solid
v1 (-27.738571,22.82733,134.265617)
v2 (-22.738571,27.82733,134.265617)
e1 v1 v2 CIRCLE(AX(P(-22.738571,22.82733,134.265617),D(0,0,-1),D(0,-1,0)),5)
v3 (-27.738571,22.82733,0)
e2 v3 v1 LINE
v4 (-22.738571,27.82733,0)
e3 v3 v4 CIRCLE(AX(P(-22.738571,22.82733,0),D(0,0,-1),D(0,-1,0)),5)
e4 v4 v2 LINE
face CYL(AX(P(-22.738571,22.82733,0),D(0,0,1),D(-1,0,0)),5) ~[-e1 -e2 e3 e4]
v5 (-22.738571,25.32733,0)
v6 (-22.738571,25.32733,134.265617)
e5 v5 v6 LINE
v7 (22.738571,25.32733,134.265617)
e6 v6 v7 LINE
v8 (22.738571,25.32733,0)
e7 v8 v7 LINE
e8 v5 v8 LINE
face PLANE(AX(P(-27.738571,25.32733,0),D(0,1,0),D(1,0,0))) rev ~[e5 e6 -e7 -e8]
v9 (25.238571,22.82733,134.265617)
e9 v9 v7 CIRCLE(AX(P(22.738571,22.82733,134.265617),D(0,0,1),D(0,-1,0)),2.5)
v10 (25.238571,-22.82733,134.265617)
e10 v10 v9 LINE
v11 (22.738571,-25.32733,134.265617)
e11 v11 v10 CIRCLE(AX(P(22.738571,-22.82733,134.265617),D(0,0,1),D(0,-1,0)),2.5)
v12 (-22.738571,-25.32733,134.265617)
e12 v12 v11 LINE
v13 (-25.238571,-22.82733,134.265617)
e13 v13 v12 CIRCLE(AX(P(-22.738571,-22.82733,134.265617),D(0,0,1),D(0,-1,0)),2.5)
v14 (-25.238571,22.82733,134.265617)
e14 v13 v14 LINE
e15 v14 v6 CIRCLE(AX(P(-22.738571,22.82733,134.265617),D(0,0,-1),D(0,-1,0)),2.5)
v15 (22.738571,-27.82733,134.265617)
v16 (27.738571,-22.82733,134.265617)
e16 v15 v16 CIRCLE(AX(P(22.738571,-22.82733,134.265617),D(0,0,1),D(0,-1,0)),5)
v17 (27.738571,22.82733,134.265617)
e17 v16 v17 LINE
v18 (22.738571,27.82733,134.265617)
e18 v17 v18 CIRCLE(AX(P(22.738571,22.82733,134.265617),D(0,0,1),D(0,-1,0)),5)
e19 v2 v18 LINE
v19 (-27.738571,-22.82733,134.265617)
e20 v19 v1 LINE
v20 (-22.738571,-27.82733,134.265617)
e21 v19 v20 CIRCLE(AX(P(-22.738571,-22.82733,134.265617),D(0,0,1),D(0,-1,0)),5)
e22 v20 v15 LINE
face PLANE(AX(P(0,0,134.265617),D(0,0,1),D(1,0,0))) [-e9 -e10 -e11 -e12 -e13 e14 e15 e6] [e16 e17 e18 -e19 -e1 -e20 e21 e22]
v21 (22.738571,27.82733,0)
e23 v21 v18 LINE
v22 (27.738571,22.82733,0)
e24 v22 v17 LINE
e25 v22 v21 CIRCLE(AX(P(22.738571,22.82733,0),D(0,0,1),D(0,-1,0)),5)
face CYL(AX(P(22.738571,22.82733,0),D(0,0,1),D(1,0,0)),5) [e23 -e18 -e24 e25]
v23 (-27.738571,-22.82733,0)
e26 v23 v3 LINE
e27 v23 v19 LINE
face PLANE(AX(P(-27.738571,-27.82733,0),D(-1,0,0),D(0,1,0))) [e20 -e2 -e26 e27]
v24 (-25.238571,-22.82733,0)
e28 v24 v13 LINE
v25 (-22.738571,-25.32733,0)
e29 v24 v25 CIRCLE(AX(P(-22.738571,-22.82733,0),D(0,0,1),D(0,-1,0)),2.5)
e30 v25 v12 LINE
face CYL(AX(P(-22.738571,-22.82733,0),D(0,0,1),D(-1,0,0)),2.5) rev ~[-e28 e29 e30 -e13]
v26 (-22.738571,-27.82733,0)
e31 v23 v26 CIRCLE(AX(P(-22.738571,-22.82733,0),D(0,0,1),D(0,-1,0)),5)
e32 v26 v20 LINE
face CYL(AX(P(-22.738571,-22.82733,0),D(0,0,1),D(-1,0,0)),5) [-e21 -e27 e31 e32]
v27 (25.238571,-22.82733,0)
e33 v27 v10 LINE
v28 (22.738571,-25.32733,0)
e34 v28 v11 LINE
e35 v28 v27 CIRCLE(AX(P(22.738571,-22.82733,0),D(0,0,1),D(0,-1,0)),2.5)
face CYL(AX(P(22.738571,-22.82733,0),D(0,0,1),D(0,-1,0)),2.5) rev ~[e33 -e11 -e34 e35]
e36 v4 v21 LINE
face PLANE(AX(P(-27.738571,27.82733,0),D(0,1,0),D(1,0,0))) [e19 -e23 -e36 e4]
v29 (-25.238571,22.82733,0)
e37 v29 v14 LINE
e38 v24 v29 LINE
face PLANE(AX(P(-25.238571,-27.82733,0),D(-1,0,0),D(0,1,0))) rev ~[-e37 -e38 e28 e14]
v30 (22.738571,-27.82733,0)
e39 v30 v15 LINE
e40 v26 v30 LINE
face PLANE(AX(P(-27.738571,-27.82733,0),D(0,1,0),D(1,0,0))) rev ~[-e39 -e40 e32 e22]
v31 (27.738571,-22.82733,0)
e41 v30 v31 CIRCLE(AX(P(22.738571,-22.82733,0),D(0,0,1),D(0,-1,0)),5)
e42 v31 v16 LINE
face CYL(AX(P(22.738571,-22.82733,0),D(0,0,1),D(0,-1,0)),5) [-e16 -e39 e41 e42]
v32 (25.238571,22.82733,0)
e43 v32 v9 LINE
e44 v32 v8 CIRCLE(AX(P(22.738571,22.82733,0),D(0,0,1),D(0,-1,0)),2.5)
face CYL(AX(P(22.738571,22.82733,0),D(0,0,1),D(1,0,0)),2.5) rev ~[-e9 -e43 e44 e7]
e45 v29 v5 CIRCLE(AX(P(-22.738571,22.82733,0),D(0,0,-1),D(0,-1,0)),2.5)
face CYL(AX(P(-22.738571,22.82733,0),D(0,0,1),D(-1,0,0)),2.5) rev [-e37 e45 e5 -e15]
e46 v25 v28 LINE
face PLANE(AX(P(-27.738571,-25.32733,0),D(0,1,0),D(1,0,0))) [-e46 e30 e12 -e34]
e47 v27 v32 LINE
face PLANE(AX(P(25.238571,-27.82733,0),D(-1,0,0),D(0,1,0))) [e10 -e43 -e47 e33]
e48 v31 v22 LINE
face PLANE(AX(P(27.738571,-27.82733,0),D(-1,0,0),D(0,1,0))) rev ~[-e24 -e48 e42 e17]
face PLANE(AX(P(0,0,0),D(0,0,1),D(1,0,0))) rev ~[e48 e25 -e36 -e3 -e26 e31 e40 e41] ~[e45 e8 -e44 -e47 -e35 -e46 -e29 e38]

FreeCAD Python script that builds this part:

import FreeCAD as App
import Part
import Sketcher

V = App.Vector


def edges_at(feature, points):
    """Names of the edges that pass closest to the given points."""
    edges = feature.Shape.Edges
    near = lambda p: min(range(len(edges)), key=lambda i: edges[i].distToShape(Part.Vertex(*p))[0])
    return sorted({f"Edge{near(p) + 1}" for p in points})


def faces_at(feature, points):
    """Names of the faces that lie closest to the given points."""
    faces = feature.Shape.Faces
    near = lambda p: min(range(len(faces)), key=lambda i: faces[i].distToShape(Part.Vertex(*p))[0])
    return sorted({f"Face{near(p) + 1}" for p in points})

doc = App.newDocument("Part")
body = doc.addObject("PartDesign::Body", "Body")

# Sketch on XY plane
sketch1 = doc.addObject("Sketcher::SketchObject", "Sketch")
body.addObject(sketch1)
sketch1.AttachmentSupport = (doc.XY_Plane, [""])
sketch1.MapMode = "FlatFace"
sketch1.addGeometry(Part.LineSegment(V(-27.738571, 27.82733, 0), V(-27.738571, -27.82733, 0)), False)
sketch1.addGeometry(Part.LineSegment(V(-27.738571, -27.82733, 0), V(27.738571, -27.82733, 0)), False)
sketch1.addGeometry(Part.LineSegment(V(27.738571, -27.82733, 0), V(27.738571, 27.82733, 0)), False)
sketch1.addGeometry(Part.LineSegment(V(27.738571, 27.82733, 0), V(-27.738571, 27.82733, 0)), False)
sketch1.addConstraint(Sketcher.Constraint("Coincident", 0, 2, 1, 1))
sketch1.addConstraint(Sketcher.Constraint("Coincident", 1, 2, 2, 1))
sketch1.addConstraint(Sketcher.Constraint("Coincident", 2, 2, 3, 1))
sketch1.addConstraint(Sketcher.Constraint("Coincident", 3, 2, 0, 1))
sketch1.addConstraint(Sketcher.Constraint("Vertical", 0))
sketch1.addConstraint(Sketcher.Constraint("Horizontal", 1))
sketch1.addConstraint(Sketcher.Constraint("Vertical", 2))
sketch1.addConstraint(Sketcher.Constraint("Horizontal", 3))
sketch1.addConstraint(Sketcher.Constraint("Symmetric", 0, 2, 2, 2, -1, 1))
sketch1.addConstraint(Sketcher.Constraint("DistanceY", 0, 2, 0, 1, 55.65466))
sketch1.addConstraint(Sketcher.Constraint("DistanceX", 1, 1, 1, 2, 55.477142))
pad1 = doc.addObject("PartDesign::Pad", "Pad")
body.addObject(pad1)
pad1.Profile = sketch1
pad1.Length = 134.265617
doc.recompute()

fillet = doc.addObject("PartDesign::Fillet", "Fillet")
body.addObject(fillet)
fillet.Base = (pad1, edges_at(pad1, [
    (27.739, -27.827, 67.133),
    (27.739, 27.827, 67.133),
    (-27.739, -27.827, 67.133),
    (-27.739, 27.827, 67.133),
]))
fillet.Radius = 5
doc.recompute()

thickness = doc.addObject("PartDesign::Thickness", "Thickness")
body.addObject(thickness)
thickness.Base = (fillet, faces_at(fillet, [(0, 0, 134.266), (0, 0, 0)]))
thickness.Value = 2.5
thickness.Reversed = True
thickness.Join = "Arc"

doc.recompute()
